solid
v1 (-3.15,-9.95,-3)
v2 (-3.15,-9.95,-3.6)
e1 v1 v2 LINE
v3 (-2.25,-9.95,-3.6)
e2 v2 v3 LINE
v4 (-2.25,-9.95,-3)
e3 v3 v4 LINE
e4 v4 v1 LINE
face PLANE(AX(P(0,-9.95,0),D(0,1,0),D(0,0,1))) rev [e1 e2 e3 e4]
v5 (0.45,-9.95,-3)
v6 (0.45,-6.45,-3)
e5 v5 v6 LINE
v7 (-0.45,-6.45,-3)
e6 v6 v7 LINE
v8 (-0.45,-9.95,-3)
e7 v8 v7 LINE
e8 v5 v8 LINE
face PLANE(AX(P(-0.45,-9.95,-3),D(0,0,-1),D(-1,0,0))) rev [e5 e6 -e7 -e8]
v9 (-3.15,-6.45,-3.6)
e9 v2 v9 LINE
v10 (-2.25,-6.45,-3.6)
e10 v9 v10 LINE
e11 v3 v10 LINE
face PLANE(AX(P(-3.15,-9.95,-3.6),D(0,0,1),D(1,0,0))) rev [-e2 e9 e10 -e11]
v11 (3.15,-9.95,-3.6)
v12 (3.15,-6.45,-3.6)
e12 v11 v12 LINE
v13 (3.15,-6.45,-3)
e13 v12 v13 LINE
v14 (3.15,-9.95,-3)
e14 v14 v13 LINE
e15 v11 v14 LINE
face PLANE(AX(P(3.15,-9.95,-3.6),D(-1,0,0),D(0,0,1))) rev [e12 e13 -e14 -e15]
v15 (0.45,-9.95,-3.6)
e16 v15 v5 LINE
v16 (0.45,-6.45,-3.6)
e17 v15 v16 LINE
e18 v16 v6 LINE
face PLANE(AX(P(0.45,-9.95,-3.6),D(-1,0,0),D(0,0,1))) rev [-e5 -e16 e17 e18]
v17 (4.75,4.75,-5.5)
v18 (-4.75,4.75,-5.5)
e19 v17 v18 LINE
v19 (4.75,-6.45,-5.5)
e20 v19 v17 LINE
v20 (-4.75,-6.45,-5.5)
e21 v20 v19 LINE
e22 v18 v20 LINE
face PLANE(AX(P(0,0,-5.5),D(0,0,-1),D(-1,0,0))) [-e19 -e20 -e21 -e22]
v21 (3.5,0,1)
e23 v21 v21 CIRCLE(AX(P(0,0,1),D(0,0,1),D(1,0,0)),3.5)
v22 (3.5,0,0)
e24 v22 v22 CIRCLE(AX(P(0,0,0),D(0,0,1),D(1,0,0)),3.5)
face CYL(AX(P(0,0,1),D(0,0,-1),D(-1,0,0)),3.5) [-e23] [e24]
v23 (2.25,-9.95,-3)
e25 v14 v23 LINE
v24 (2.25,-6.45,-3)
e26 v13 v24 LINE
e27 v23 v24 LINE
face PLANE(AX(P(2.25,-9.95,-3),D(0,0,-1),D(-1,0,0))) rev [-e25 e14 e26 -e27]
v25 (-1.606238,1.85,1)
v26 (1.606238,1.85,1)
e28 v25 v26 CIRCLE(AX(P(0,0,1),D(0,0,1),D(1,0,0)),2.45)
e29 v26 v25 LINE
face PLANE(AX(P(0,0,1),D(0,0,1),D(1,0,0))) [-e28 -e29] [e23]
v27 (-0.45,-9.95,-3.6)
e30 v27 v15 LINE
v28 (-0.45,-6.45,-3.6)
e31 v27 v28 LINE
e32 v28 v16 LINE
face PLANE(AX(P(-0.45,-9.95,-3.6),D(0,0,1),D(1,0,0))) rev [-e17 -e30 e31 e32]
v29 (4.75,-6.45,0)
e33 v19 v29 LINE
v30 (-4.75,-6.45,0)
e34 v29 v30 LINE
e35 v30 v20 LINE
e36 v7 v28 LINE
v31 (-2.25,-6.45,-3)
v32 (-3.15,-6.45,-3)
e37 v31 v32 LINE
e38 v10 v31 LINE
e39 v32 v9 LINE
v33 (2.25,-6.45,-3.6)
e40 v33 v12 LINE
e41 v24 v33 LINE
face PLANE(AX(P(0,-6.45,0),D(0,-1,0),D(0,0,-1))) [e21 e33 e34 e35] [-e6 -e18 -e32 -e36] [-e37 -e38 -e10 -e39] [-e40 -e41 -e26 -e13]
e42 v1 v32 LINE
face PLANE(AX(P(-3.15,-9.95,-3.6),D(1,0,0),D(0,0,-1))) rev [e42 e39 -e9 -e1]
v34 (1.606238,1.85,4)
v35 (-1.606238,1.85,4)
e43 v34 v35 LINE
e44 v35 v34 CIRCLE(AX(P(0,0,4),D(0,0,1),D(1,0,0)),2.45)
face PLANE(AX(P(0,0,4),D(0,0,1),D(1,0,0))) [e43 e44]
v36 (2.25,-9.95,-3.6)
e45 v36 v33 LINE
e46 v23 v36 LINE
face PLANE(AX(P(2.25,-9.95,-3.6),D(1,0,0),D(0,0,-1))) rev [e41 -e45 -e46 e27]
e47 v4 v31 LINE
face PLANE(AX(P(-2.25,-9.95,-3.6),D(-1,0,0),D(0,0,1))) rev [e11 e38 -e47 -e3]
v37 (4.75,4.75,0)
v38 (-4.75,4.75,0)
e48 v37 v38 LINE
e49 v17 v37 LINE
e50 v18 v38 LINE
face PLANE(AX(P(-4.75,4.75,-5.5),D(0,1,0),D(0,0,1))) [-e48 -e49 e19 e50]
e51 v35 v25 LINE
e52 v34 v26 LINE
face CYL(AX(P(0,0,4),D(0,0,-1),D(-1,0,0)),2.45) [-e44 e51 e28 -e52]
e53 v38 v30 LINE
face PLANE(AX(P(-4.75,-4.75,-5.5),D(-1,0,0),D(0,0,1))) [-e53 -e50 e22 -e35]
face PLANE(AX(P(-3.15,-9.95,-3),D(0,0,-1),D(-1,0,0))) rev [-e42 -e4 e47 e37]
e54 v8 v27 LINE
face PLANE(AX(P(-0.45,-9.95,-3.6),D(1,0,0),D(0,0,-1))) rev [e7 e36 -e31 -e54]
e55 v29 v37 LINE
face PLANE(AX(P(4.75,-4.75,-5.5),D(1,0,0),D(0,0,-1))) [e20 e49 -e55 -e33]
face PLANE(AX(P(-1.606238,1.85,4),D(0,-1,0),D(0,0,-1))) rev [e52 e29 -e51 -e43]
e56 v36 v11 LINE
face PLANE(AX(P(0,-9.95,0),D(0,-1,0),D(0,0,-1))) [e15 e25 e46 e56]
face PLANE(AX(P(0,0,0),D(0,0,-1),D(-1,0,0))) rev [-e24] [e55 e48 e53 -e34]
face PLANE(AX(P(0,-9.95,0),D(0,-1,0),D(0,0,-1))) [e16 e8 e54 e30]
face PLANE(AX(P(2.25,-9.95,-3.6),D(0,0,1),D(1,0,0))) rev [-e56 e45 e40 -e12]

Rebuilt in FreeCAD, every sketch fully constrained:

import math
import FreeCAD as App
import Part
import Sketcher

V = App.Vector
Q = App.Units.Quantity

doc = App.newDocument("Part")
body = doc.addObject("PartDesign::Body", "Body")

# Sketch on XY plane
sketch1 = body.newObject("Sketcher::SketchObject", "Sketch")
sketch1.AttachmentSupport = (doc.getObject("XY_Plane"), [""])
sketch1.MapMode = "FlatFace"
sketch1.addGeometry(Part.LineSegment(V(-5, 5, 0), V(-5, -5, 0)), False)
sketch1.addGeometry(Part.LineSegment(V(-5, -5, 0), V(5, -5, 0)), False)
sketch1.addGeometry(Part.LineSegment(V(5, -5, 0), V(5, 5, 0)), False)
sketch1.addGeometry(Part.LineSegment(V(5, 5, 0), V(-5, 5, 0)), False)
sketch1.addConstraint(Sketcher.Constraint("Coincident", 0, 2, 1, 1))
sketch1.addConstraint(Sketcher.Constraint("Coincident", 1, 2, 2, 1))
sketch1.addConstraint(Sketcher.Constraint("Coincident", 2, 2, 3, 1))
sketch1.addConstraint(Sketcher.Constraint("Coincident", 3, 2, 0, 1))
sketch1.addConstraint(Sketcher.Constraint("Vertical", 0))
sketch1.addConstraint(Sketcher.Constraint("Horizontal", 1))
sketch1.addConstraint(Sketcher.Constraint("Vertical", 2))
sketch1.addConstraint(Sketcher.Constraint("Horizontal", 3))
sketch1.addConstraint(Sketcher.Constraint("Symmetric", 0, 2, 2, 2, -1, 1))
sketch1.addConstraint(Sketcher.Constraint("Equal", 3, 0))
sketch1.addConstraint(Sketcher.Constraint("DistanceX", 1, 1, 1, 2, Q("9.5 mm")))
pad1 = body.newObject("PartDesign::Pad", "Pad")
pad1.Profile = sketch1
pad1.Length = 5.5
pad1.Reversed = True

# Sketch on XZ plane
sketch2 = body.newObject("Sketcher::SketchObject", "Sketch001")
sketch2.AttachmentSupport = (doc.getObject("XZ_Plane"), [""])
sketch2.MapMode = "FlatFace"
sketch2.AttachmentOffset = App.Placement(V(0, 0, 4.75), App.Rotation())
sketch2.addGeometry(Part.LineSegment(V(-5, 0, 0), V(-5, -6, 0)), False)
sketch2.addGeometry(Part.LineSegment(V(-5, -6, 0), V(5, -6, 0)), False)
sketch2.addGeometry(Part.LineSegment(V(5, -6, 0), V(5, 0, 0)), False)
sketch2.addGeometry(Part.LineSegment(V(5, 0, 0), V(-5, 0, 0)), False)
sketch2.addConstraint(Sketcher.Constraint("Coincident", 0, 2, 1, 1))
sketch2.addConstraint(Sketcher.Constraint("Coincident", 1, 2, 2, 1))
sketch2.addConstraint(Sketcher.Constraint("Coincident", 2, 2, 3, 1))
sketch2.addConstraint(Sketcher.Constraint("Coincident", 3, 2, 0, 1))
sketch2.addConstraint(Sketcher.Constraint("Vertical", 0))
sketch2.addConstraint(Sketcher.Constraint("Horizontal", 1))
sketch2.addConstraint(Sketcher.Constraint("Vertical", 2))
sketch2.addConstraint(Sketcher.Constraint("Horizontal", 3))
sketch2.addConstraint(Sketcher.Constraint("Symmetric", 2, 2, 3, 2, -1, 1))
sketch2.addConstraint(Sketcher.Constraint("DistanceX", 1, 1, 1, 2, Q("9.5 mm")))
sketch2.addConstraint(Sketcher.Constraint("DistanceY", 0, 2, 0, 1, Q("5.5 mm")))
pad2 = body.newObject("PartDesign::Pad", "Pad001")
pad2.Profile = sketch2
pad2.Length = 1.7

# Sketch on XY plane
sketch3 = body.newObject("Sketcher::SketchObject", "Sketch002")
sketch3.AttachmentSupport = (doc.getObject("XY_Plane"), [""])
sketch3.MapMode = "FlatFace"
sketch3.addGeometry(Part.Circle(V(0, 0, 0), V(0, 0, 1), 3.5), False)
sketch3.addConstraint(Sketcher.Constraint("Coincident", 0, 3, -1, 1))
sketch3.addConstraint(Sketcher.Constraint("Diameter", 0, Q("7 mm")))
pad3 = body.newObject("PartDesign::Pad", "Pad002")
pad3.Profile = sketch3
pad3.Length = 1

# Sketch on XY plane
sketch4 = body.newObject("Sketcher::SketchObject", "Sketch003")
sketch4.AttachmentSupport = (doc.getObject("XY_Plane"), [""])
sketch4.MapMode = "FlatFace"
sketch4.AttachmentOffset = App.Placement(V(0, 0, 1), App.Rotation())
sketch4.addGeometry(Part.LineSegment(V(1.6, 1.9, 0), V(-1.6, 1.9, 0)), False)
sketch4.addGeometry(Part.ArcOfCircle(Part.Circle(V(0, 0, 0), V(0, 0, 1), 2.5), math.radians(131), math.radians(409)), False)
sketch4.addConstraint(Sketcher.Constraint("Coincident", 0, 1, 1, 2))
sketch4.addConstraint(Sketcher.Constraint("Coincident", 1, 1, 0, 2))
sketch4.addConstraint(Sketcher.Constraint("Horizontal", 0))
sketch4.addConstraint(Sketcher.Constraint("Coincident", 1, 3, -1, 1))
sketch4.addConstraint(Sketcher.Constraint("Radius", 1, Q("2.45 mm")))
sketch4.addConstraint(Sketcher.Constraint("DistanceY", -1, 1, 0, 1, Q("1.85 mm")))
pad4 = body.newObject("PartDesign::Pad", "Pad003")
pad4.Profile = sketch4
pad4.Length = 3

# Sketch on XZ plane
sketch5 = body.newObject("Sketcher::SketchObject", "Sketch004")
sketch5.AttachmentSupport = (doc.getObject("XZ_Plane"), [""])
sketch5.MapMode = "FlatFace"
sketch5.AttachmentOffset = App.Placement(V(0, 0, 6.45), App.Rotation())
sketch5.addGeometry(Part.LineSegment(V(-3.1, -3, 0), V(-3.1, -3.6, 0)), False)
sketch5.addGeometry(Part.LineSegment(V(-3.1, -3.6, 0), V(-2.2, -3.6, 0)), False)
sketch5.addGeometry(Part.LineSegment(V(-2.2, -3.6, 0), V(-2.2, -3, 0)), False)
sketch5.addGeometry(Part.LineSegment(V(-2.2, -3, 0), V(-3.1, -3, 0)), False)
sketch5.addGeometry(Part.LineSegment(V(-0.5, -3, 0), V(-0.5, -3.6, 0)), False)
sketch5.addGeometry(Part.LineSegment(V(-0.5, -3.6, 0), V(0.5, -3.6, 0)), False)
sketch5.addGeometry(Part.LineSegment(V(0.5, -3.6, 0), V(0.5, -3, 0)), False)
sketch5.addGeometry(Part.LineSegment(V(0.5, -3, 0), V(-0.5, -3, 0)), False)
sketch5.addGeometry(Part.LineSegment(V(2.2, -3, 0), V(2.2, -3.6, 0)), False)
sketch5.addGeometry(Part.LineSegment(V(2.2, -3.6, 0), V(3.1, -3.6, 0)), False)
sketch5.addGeometry(Part.LineSegment(V(3.1, -3.6, 0), V(3.1, -3, 0)), False)
sketch5.addGeometry(Part.LineSegment(V(3.1, -3, 0), V(2.2, -3, 0)), False)
sketch5.addConstraint(Sketcher.Constraint("Coincident", 0, 2, 1, 1))
sketch5.addConstraint(Sketcher.Constraint("Coincident", 1, 2, 2, 1))
sketch5.addConstraint(Sketcher.Constraint("Coincident", 2, 2, 3, 1))
sketch5.addConstraint(Sketcher.Constraint("Coincident", 3, 2, 0, 1))
sketch5.addConstraint(Sketcher.Constraint("Coincident", 4, 2, 5, 1))
sketch5.addConstraint(Sketcher.Constraint("Coincident", 5, 2, 6, 1))
sketch5.addConstraint(Sketcher.Constraint("Coincident", 6, 2, 7, 1))
sketch5.addConstraint(Sketcher.Constraint("Coincident", 7, 2, 4, 1))
sketch5.addConstraint(Sketcher.Constraint("Coincident", 8, 2, 9, 1))
sketch5.addConstraint(Sketcher.Constraint("Coincident", 9, 2, 10, 1))
sketch5.addConstraint(Sketcher.Constraint("Coincident", 10, 2, 11, 1))
sketch5.addConstraint(Sketcher.Constraint("Coincident", 11, 2, 8, 1))
sketch5.addConstraint(Sketcher.Constraint("Vertical", 0))
sketch5.addConstraint(Sketcher.Constraint("Horizontal", 1))
sketch5.addConstraint(Sketcher.Constraint("Vertical", 2))
sketch5.addConstraint(Sketcher.Constraint("Horizontal", 3))
sketch5.addConstraint(Sketcher.Constraint("Vertical", 4))
sketch5.addConstraint(Sketcher.Constraint("Horizontal", 5))
sketch5.addConstraint(Sketcher.Constraint("Vertical", 6))
sketch5.addConstraint(Sketcher.Constraint("Horizontal", 7))
sketch5.addConstraint(Sketcher.Constraint("Vertical", 8))
sketch5.addConstraint(Sketcher.Constraint("Horizontal", 9))
sketch5.addConstraint(Sketcher.Constraint("Vertical", 10))
sketch5.addConstraint(Sketcher.Constraint("Horizontal", 11))
sketch5.addConstraint(Sketcher.Constraint("Symmetric", 1, 2, 8, 2, -2))
sketch5.addConstraint(Sketcher.Constraint("Symmetric", 3, 2, 10, 2, -2))
sketch5.addConstraint(Sketcher.Constraint("Horizontal", 1, 2, 4, 2))
sketch5.addConstraint(Sketcher.Constraint("Horizontal", 3, 2, 6, 2))
sketch5.addConstraint(Sketcher.Constraint("Equal", 3, 5))
sketch5.addConstraint(Sketcher.Constraint("DistanceX", 1, 1, 1, 2, Q("0.9 mm")))
sketch5.addConstraint(Sketcher.Constraint("DistanceY", 0, 2, 0, 1, Q("0.6 mm")))
sketch5.addConstraint(Sketcher.Constraint("DistanceY", 2, 2, -1, 1, Q("3 mm")))
sketch5.addConstraint(Sketcher.Constraint("DistanceX", 1, 2, 4, 2, Q("1.8 mm")))
sketch5.addConstraint(Sketcher.Constraint("DistanceX", 5, 2, 8, 2, Q("1.8 mm")))
pad5 = body.newObject("PartDesign::Pad", "Pad004")
pad5.Profile = sketch5
pad5.Length = 3.5

doc.recompute()
